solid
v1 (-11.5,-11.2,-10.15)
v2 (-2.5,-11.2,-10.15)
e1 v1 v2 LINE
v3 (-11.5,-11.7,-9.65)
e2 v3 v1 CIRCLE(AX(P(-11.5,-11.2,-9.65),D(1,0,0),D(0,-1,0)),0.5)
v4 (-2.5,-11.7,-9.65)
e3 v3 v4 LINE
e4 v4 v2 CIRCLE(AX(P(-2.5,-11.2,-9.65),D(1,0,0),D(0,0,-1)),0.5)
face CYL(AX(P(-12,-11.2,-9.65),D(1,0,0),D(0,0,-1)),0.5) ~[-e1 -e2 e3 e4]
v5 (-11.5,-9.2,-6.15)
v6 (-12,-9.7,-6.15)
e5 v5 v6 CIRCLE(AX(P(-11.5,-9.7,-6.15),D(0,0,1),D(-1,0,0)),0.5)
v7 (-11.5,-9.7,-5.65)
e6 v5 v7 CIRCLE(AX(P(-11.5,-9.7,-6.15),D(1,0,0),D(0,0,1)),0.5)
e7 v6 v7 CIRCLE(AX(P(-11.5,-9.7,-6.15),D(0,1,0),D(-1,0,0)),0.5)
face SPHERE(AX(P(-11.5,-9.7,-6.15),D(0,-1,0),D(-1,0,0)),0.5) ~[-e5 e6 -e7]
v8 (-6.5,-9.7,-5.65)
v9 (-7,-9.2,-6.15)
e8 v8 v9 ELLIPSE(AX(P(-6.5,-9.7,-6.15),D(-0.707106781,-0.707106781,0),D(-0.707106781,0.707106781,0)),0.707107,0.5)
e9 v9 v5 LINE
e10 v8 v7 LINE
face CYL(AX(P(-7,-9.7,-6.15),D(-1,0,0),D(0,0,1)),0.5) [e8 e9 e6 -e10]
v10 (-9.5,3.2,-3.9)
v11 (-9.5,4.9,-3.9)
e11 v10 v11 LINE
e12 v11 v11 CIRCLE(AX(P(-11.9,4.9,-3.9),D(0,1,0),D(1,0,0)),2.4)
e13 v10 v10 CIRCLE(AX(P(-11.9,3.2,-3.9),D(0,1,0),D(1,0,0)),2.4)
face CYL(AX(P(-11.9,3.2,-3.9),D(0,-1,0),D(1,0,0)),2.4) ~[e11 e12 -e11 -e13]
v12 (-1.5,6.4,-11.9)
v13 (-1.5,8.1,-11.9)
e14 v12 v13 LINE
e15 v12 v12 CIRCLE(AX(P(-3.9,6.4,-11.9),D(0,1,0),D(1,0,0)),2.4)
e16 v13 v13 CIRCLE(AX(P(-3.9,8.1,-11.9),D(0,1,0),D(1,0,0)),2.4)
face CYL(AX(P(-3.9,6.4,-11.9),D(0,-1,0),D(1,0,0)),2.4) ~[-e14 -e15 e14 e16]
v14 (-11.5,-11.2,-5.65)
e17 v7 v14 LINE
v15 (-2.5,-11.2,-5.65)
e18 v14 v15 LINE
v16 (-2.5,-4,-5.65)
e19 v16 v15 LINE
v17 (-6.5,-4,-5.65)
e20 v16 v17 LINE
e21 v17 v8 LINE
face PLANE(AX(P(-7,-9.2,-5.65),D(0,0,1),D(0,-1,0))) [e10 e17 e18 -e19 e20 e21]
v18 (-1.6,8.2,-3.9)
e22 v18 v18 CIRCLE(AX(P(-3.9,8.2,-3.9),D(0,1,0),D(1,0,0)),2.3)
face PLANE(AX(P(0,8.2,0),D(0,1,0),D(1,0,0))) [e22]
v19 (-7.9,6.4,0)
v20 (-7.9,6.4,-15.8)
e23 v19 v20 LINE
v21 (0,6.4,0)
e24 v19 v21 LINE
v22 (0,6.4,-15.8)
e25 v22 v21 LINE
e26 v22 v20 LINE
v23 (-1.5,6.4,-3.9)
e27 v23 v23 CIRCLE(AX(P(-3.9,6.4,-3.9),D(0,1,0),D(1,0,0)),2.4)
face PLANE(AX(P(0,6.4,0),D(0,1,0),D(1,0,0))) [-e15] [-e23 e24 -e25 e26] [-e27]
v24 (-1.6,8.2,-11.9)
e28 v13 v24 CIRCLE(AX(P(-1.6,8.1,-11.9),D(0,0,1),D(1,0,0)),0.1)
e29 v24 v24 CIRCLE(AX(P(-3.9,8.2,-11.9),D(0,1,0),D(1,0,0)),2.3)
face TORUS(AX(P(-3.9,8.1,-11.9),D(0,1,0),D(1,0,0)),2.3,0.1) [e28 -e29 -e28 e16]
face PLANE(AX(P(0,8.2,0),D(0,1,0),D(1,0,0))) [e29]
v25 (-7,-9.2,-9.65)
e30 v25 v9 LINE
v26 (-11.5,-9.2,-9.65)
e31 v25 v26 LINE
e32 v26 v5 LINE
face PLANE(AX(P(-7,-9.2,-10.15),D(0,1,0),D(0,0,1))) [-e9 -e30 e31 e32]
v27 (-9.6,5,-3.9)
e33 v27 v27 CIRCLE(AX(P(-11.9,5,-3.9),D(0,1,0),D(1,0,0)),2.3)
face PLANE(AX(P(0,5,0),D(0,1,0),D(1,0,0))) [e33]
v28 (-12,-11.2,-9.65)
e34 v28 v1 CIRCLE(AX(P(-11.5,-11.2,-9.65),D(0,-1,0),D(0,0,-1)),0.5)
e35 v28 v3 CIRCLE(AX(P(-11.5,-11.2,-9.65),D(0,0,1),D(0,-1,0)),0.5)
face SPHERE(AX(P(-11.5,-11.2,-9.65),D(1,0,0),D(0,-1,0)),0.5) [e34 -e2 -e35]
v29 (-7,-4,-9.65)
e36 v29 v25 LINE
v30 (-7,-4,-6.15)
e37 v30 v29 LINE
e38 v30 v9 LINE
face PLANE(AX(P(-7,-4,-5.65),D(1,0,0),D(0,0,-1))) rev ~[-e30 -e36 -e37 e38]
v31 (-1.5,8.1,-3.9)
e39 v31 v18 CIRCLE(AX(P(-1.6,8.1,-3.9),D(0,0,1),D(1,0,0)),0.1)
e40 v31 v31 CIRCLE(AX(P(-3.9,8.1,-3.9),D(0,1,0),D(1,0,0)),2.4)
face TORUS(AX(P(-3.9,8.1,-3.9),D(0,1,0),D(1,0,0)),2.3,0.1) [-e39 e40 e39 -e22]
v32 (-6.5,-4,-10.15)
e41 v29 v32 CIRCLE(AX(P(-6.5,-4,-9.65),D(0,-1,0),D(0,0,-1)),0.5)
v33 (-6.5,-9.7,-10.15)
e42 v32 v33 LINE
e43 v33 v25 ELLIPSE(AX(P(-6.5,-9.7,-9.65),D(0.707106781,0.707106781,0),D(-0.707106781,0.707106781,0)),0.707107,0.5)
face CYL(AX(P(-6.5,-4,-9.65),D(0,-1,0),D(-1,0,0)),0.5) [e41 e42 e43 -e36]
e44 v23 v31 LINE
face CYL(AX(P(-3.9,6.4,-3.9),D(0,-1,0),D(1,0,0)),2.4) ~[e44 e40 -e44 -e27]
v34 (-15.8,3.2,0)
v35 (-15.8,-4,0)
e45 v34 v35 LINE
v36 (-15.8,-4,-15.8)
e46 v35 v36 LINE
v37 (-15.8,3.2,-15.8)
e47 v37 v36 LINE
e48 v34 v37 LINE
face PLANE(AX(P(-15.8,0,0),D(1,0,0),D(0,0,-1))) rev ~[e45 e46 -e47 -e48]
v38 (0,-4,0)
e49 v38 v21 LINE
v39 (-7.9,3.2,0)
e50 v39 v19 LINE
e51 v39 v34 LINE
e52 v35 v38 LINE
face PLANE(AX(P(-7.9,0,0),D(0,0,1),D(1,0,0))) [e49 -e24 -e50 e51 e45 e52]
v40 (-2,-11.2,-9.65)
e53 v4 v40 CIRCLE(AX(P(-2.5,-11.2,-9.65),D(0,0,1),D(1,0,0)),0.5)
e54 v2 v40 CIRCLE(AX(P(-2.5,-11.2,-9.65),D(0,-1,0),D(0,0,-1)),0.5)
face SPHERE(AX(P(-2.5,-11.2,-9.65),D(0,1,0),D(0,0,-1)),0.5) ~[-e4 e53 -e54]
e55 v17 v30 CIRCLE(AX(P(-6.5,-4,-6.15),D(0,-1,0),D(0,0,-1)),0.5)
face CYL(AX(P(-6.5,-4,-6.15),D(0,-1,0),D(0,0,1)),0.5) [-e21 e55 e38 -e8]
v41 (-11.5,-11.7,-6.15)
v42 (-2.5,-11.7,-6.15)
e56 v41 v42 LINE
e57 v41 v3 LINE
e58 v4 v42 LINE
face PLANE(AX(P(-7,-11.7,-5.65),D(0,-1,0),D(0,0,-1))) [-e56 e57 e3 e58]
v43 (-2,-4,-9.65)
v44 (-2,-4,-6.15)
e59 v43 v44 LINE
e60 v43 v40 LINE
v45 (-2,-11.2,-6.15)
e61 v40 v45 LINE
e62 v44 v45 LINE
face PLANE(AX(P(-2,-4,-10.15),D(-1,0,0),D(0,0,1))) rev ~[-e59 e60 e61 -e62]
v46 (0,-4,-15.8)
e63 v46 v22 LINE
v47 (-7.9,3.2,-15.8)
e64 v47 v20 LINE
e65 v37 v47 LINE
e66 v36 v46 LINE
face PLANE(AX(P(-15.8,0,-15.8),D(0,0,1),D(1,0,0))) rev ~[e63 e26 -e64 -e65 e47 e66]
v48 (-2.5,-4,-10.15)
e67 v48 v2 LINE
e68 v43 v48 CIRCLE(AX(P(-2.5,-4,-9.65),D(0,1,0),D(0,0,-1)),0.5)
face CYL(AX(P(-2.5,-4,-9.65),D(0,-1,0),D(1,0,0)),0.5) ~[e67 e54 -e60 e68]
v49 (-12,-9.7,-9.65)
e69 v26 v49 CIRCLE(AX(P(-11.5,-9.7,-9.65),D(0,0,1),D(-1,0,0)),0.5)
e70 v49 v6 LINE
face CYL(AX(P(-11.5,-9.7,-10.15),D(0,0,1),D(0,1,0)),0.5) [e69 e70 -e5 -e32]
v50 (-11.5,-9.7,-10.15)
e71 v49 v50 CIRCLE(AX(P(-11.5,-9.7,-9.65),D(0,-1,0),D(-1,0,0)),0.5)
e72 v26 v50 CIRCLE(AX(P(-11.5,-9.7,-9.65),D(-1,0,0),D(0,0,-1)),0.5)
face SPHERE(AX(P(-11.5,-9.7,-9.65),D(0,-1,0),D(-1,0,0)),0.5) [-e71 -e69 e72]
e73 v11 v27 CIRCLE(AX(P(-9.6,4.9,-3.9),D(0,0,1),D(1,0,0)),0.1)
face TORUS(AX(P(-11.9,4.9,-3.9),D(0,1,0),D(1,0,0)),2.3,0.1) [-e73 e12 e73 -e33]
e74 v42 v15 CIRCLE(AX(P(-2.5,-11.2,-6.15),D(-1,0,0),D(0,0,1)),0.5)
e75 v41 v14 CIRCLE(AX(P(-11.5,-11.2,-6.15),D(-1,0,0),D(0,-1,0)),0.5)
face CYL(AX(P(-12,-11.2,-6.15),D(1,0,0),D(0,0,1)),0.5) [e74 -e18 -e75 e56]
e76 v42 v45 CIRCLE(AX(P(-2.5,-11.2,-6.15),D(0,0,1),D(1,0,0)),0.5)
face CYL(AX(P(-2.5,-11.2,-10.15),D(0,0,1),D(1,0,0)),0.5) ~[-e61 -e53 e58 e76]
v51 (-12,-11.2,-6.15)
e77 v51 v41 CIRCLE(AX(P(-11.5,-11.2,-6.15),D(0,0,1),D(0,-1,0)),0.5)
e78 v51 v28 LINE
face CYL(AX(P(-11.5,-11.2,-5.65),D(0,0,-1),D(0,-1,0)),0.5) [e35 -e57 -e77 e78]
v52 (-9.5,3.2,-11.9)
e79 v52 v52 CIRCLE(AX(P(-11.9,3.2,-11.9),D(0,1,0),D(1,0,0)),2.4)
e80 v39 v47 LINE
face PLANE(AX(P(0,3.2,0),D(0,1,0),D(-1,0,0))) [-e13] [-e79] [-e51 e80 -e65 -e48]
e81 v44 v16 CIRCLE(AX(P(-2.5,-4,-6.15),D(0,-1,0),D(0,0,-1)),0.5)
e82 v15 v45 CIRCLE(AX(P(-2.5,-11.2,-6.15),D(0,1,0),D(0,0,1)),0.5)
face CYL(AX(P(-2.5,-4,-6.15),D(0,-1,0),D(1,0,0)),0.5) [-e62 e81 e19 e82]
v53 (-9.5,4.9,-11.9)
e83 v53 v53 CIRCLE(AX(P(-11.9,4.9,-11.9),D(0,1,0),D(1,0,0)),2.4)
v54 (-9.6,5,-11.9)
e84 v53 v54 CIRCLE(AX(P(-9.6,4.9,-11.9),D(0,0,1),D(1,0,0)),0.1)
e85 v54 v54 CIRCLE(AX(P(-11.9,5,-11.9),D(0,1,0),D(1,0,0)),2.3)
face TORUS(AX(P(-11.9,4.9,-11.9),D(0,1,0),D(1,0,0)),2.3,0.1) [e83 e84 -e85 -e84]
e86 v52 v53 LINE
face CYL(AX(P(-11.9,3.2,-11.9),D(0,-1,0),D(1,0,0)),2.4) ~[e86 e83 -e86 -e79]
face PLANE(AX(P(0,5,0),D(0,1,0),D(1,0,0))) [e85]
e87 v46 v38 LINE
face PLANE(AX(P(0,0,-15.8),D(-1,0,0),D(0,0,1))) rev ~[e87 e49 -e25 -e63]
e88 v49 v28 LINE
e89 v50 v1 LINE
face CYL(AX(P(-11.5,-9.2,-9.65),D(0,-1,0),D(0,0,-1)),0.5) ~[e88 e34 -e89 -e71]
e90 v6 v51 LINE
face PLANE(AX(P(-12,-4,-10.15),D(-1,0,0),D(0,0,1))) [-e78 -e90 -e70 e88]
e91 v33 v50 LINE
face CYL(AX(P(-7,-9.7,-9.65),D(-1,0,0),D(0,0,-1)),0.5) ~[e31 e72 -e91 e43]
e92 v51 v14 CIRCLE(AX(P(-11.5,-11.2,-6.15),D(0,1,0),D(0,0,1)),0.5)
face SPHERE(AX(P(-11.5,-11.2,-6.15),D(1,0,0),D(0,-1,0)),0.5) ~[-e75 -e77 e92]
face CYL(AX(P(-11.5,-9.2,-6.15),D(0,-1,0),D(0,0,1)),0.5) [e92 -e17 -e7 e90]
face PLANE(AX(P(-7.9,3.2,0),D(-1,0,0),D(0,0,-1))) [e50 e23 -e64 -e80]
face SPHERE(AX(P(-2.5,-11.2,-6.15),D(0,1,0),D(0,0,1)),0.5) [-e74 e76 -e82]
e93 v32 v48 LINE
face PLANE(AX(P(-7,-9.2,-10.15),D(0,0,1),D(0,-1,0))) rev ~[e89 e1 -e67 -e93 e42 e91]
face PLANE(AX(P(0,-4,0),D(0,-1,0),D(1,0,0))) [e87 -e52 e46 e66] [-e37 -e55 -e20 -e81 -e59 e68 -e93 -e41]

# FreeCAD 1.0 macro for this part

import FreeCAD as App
import Part
import Sketcher


def edges_at(feature, points):
    """Names of the edges that pass closest to the given points."""
    edges = feature.Shape.Edges
    near = lambda p: min(range(len(edges)), key=lambda i: edges[i].distToShape(Part.Vertex(*p))[0])
    return sorted({f"Edge{near(p) + 1}" for p in points})

doc = App.newDocument("Part")
body = doc.addObject("PartDesign::Body", "Body")

sketch1 = doc.addObject("Sketcher::SketchObject", "Sketch")
body.addObject(sketch1)
sketch1.AttachmentSupport = (doc.XZ_Plane, [""])
sketch1.MapMode = "FlatFace"
sketch1.addGeometry(Part.LineSegment(App.Vector(-16, 0, 0), App.Vector(0, 0, 0)), False)
sketch1.addGeometry(Part.LineSegment(App.Vector(0, 0, 0), App.Vector(0, -16, 0)), False)
sketch1.addGeometry(Part.LineSegment(App.Vector(0, -16, 0), App.Vector(-16, -16, 0)), False)
sketch1.addGeometry(Part.LineSegment(App.Vector(-16, -16, 0), App.Vector(-16, 0, 0)), False)
sketch1.addConstraint(Sketcher.Constraint("Coincident", 0, 2, 1, 1))
sketch1.addConstraint(Sketcher.Constraint("Coincident", 1, 2, 2, 1))
sketch1.addConstraint(Sketcher.Constraint("Coincident", 2, 2, 3, 1))
sketch1.addConstraint(Sketcher.Constraint("Coincident", 3, 2, 0, 1))
sketch1.addConstraint(Sketcher.Constraint("Horizontal", 0))
sketch1.addConstraint(Sketcher.Constraint("Vertical", 1))
sketch1.addConstraint(Sketcher.Constraint("Horizontal", 2))
sketch1.addConstraint(Sketcher.Constraint("Vertical", 3))
sketch1.addConstraint(Sketcher.Constraint("Coincident", 0, 2, -1, 1))
sketch1.addConstraint(Sketcher.Constraint("Equal", 2, 1))
sketch1.addConstraint(Sketcher.Constraint("DistanceX", 0, 1, 0, 2, 15.8))
pad1 = doc.addObject("PartDesign::Pad", "Pad")
body.addObject(pad1)
pad1.Profile = sketch1
pad1.Length = 3.2
pad1.Reversed = True

sketch2 = doc.addObject("Sketcher::SketchObject", "Sketch001")
body.addObject(sketch2)
sketch2.AttachmentSupport = (doc.XZ_Plane, [""])
sketch2.MapMode = "FlatFace"
sketch2.AttachmentOffset = App.Placement(App.Vector(0, 0, -3.2), App.Rotation())
sketch2.addGeometry(Part.LineSegment(App.Vector(-8, -16, 0), App.Vector(-8, 0, 0)), False)
sketch2.addGeometry(Part.LineSegment(App.Vector(-8, 0, 0), App.Vector(0, 0, 0)), False)
sketch2.addGeometry(Part.LineSegment(App.Vector(0, 0, 0), App.Vector(0, -16, 0)), False)
sketch2.addGeometry(Part.LineSegment(App.Vector(0, -16, 0), App.Vector(-8, -16, 0)), False)
sketch2.addConstraint(Sketcher.Constraint("Coincident", 0, 2, 1, 1))
sketch2.addConstraint(Sketcher.Constraint("Coincident", 1, 2, 2, 1))
sketch2.addConstraint(Sketcher.Constraint("Coincident", 2, 2, 3, 1))
sketch2.addConstraint(Sketcher.Constraint("Coincident", 3, 2, 0, 1))
sketch2.addConstraint(Sketcher.Constraint("Vertical", 0))
sketch2.addConstraint(Sketcher.Constraint("Horizontal", 1))
sketch2.addConstraint(Sketcher.Constraint("Vertical", 2))
sketch2.addConstraint(Sketcher.Constraint("Horizontal", 3))
sketch2.addConstraint(Sketcher.Constraint("Coincident", 1, 2, -1, 1))
sketch2.addConstraint(Sketcher.Constraint("DistanceX", 1, 1, 1, 2, 7.9))
sketch2.addConstraint(Sketcher.Constraint("DistanceY", 0, 1, 0, 2, 15.8))
pad2 = doc.addObject("PartDesign::Pad", "Pad001")
body.addObject(pad2)
pad2.Profile = sketch2
pad2.Length = 3.2
pad2.Reversed = True

sketch3 = doc.addObject("Sketcher::SketchObject", "Sketch002")
body.addObject(sketch3)
sketch3.AttachmentSupport = (doc.XZ_Plane, [""])
sketch3.MapMode = "FlatFace"
sketch3.AttachmentOffset = App.Placement(App.Vector(0, 0, -3.2), App.Rotation())
sketch3.addGeometry(Part.Circle(App.Vector(-11.9, -11.9, 0), App.Vector(0, 0, 1), 2.4), False)
sketch3.addGeometry(Part.Circle(App.Vector(-11.9, -3.9, 0), App.Vector(0, 0, 1), 2.4), False)
sketch3.addConstraint(Sketcher.Constraint("Equal", 0, 1))
sketch3.addConstraint(Sketcher.Constraint("Vertical", 0, 3, 1, 3))
sketch3.addConstraint(Sketcher.Constraint("Diameter", 0, 4.8))
sketch3.addConstraint(Sketcher.Constraint("DistanceY", 1, 3, -1, 1, 3.9))
sketch3.addConstraint(Sketcher.Constraint("DistanceY", 0, 3, 1, 3, 8.0))
sketch3.addConstraint(Sketcher.Constraint("DistanceX", 0, 3, -1, 1, 11.9))
pad3 = doc.addObject("PartDesign::Pad", "Pad002")
body.addObject(pad3)
pad3.Profile = sketch3
pad3.Length = 1.8
pad3.Reversed = True

sketch4 = doc.addObject("Sketcher::SketchObject", "Sketch003")
body.addObject(sketch4)
sketch4.AttachmentSupport = (doc.XZ_Plane, [""])
sketch4.MapMode = "FlatFace"
sketch4.AttachmentOffset = App.Placement(App.Vector(0, 0, -6.4), App.Rotation())
sketch4.addGeometry(Part.Circle(App.Vector(-3.9, -11.9, 0), App.Vector(0, 0, 1), 2.4), False)
sketch4.addGeometry(Part.Circle(App.Vector(-3.9, -3.9, 0), App.Vector(0, 0, 1), 2.4), False)
sketch4.addConstraint(Sketcher.Constraint("Equal", 0, 1))
sketch4.addConstraint(Sketcher.Constraint("Vertical", 0, 3, 1, 3))
sketch4.addConstraint(Sketcher.Constraint("Diameter", 0, 4.8))
sketch4.addConstraint(Sketcher.Constraint("DistanceY", 0, 3, 1, 3, 8.0))
sketch4.addConstraint(Sketcher.Constraint("DistanceX", 0, 3, -1, 1, 3.9))
sketch4.addConstraint(Sketcher.Constraint("DistanceY", 1, 3, -1, 1, 3.9))
pad4 = doc.addObject("PartDesign::Pad", "Pad003")
body.addObject(pad4)
pad4.Profile = sketch4
pad4.Length = 1.8
pad4.Reversed = True

sketch5 = doc.addObject("Sketcher::SketchObject", "Sketch004")
body.addObject(sketch5)
sketch5.AttachmentSupport = (doc.XZ_Plane, [""])
sketch5.MapMode = "FlatFace"
sketch5.addGeometry(Part.LineSegment(App.Vector(0, 0, 0), App.Vector(-16, 0, 0)), False)
sketch5.addGeometry(Part.LineSegment(App.Vector(-16, 0, 0), App.Vector(-16, -16, 0)), False)
sketch5.addGeometry(Part.LineSegment(App.Vector(-16, -16, 0), App.Vector(0, -16, 0)), False)
sketch5.addGeometry(Part.LineSegment(App.Vector(0, -16, 0), App.Vector(0, 0, 0)), False)
sketch5.addConstraint(Sketcher.Constraint("Coincident", 0, 2, 1, 1))
sketch5.addConstraint(Sketcher.Constraint("Coincident", 1, 2, 2, 1))
sketch5.addConstraint(Sketcher.Constraint("Coincident", 2, 2, 3, 1))
sketch5.addConstraint(Sketcher.Constraint("Coincident", 3, 2, 0, 1))
sketch5.addConstraint(Sketcher.Constraint("Horizontal", 0))
sketch5.addConstraint(Sketcher.Constraint("Vertical", 1))
sketch5.addConstraint(Sketcher.Constraint("Horizontal", 2))
sketch5.addConstraint(Sketcher.Constraint("Vertical", 3))
sketch5.addConstraint(Sketcher.Constraint("Coincident", 3, 2, -1, 1))
sketch5.addConstraint(Sketcher.Constraint("Equal", 2, 1))
sketch5.addConstraint(Sketcher.Constraint("DistanceX", 0, 2, 0, 1, 15.8))
pad5 = doc.addObject("PartDesign::Pad", "Pad004")
body.addObject(pad5)
pad5.Profile = sketch5
pad5.Length = 4

sketch6 = doc.addObject("Sketcher::SketchObject", "Sketch005")
body.addObject(sketch6)
sketch6.AttachmentSupport = (doc.XZ_Plane, [""])
sketch6.MapMode = "FlatFace"
sketch6.AttachmentOffset = App.Placement(App.Vector(0, 0, 4), App.Rotation())
sketch6.addGeometry(Part.LineSegment(App.Vector(-2, -10.2, 0), App.Vector(-2, -5.7, 0)), False)
sketch6.addGeometry(Part.LineSegment(App.Vector(-2, -5.7, 0), App.Vector(-7, -5.7, 0)), False)
sketch6.addGeometry(Part.LineSegment(App.Vector(-7, -5.7, 0), App.Vector(-7, -10.2, 0)), False)
sketch6.addGeometry(Part.LineSegment(App.Vector(-7, -10.2, 0), App.Vector(-2, -10.2, 0)), False)
sketch6.addConstraint(Sketcher.Constraint("Coincident", 0, 2, 1, 1))
sketch6.addConstraint(Sketcher.Constraint("Coincident", 1, 2, 2, 1))
sketch6.addConstraint(Sketcher.Constraint("Coincident", 2, 2, 3, 1))
sketch6.addConstraint(Sketcher.Constraint("Coincident", 3, 2, 0, 1))
sketch6.addConstraint(Sketcher.Constraint("Vertical", 0))
sketch6.addConstraint(Sketcher.Constraint("Horizontal", 1))
sketch6.addConstraint(Sketcher.Constraint("Vertical", 2))
sketch6.addConstraint(Sketcher.Constraint("Horizontal", 3))
sketch6.addConstraint(Sketcher.Constraint("DistanceX", 1, 2, 1, 1, 5.0))
sketch6.addConstraint(Sketcher.Constraint("DistanceY", 0, 1, 0, 2, 4.5))
sketch6.addConstraint(Sketcher.Constraint("DistanceX", 1, 2, -1, 1, 7.0))
sketch6.addConstraint(Sketcher.Constraint("DistanceY", 0, 2, -1, 1, 5.65))
pad6 = doc.addObject("PartDesign::Pad", "Pad005")
body.addObject(pad6)
pad6.Profile = sketch6
pad6.Length = 7.7

sketch7 = doc.addObject("Sketcher::SketchObject", "Sketch006")
body.addObject(sketch7)
sketch7.AttachmentSupport = (doc.YZ_Plane, [""])
sketch7.MapMode = "FlatFace"
sketch7.AttachmentOffset = App.Placement(App.Vector(0, 0, -7), App.Rotation())
sketch7.addGeometry(Part.LineSegment(App.Vector(-11.7, -5.7, 0), App.Vector(-9.2, -5.7, 0)), False)
sketch7.addGeometry(Part.LineSegment(App.Vector(-9.2, -5.7, 0), App.Vector(-9.2, -10.2, 0)), False)
sketch7.addGeometry(Part.LineSegment(App.Vector(-9.2, -10.2, 0), App.Vector(-11.7, -10.2, 0)), False)
sketch7.addGeometry(Part.LineSegment(App.Vector(-11.7, -10.2, 0), App.Vector(-11.7, -5.7, 0)), False)
sketch7.addConstraint(Sketcher.Constraint("Coincident", 0, 2, 1, 1))
sketch7.addConstraint(Sketcher.Constraint("Coincident", 1, 2, 2, 1))
sketch7.addConstraint(Sketcher.Constraint("Coincident", 2, 2, 3, 1))
sketch7.addConstraint(Sketcher.Constraint("Coincident", 3, 2, 0, 1))
sketch7.addConstraint(Sketcher.Constraint("Horizontal", 0))
sketch7.addConstraint(Sketcher.Constraint("Vertical", 1))
sketch7.addConstraint(Sketcher.Constraint("Horizontal", 2))
sketch7.addConstraint(Sketcher.Constraint("Vertical", 3))
sketch7.addConstraint(Sketcher.Constraint("DistanceX", 0, 1, 0, 2, 2.5))
sketch7.addConstraint(Sketcher.Constraint("DistanceY", 1, 2, 1, 1, 4.5))
sketch7.addConstraint(Sketcher.Constraint("DistanceX", 0, 2, -1, 1, 9.2))
sketch7.addConstraint(Sketcher.Constraint("DistanceY", 0, 2, -1, 1, 5.65))
pad7 = doc.addObject("PartDesign::Pad", "Pad006")
body.addObject(pad7)
pad7.Profile = sketch7
pad7.Length = 5
pad7.Reversed = True
doc.recompute()

fillet = doc.addObject("PartDesign::Fillet", "Fillet")
body.addObject(fillet)
fillet.Base = (pad7, edges_at(pad7, [
    (-6.3, 8.2, -3.9),
    (-14.3, 5, -3.9),
    (-14.3, 5, -11.9),
    (-6.3, 8.2, -11.9),
]))
fillet.Radius = 0.1
doc.recompute()

fillet2 = doc.addObject("PartDesign::Fillet", "Fillet001")
body.addObject(fillet2)
fillet2.Base = (fillet, edges_at(fillet, [
    (-2, -7.85, -5.65),
    (-2, -7.85, -10.15),
    (-7, -11.7, -5.65),
    (-7, -11.7, -10.15),
    (-12, -11.7, -7.9),
    (-12, -10.45, -10.15),
    (-12, -10.45, -5.65),
    (-12, -9.2, -7.9),
    (-9.5, -9.2, -5.65),
    (-9.5, -9.2, -10.15),
    (-7, -6.6, -10.15),
    (-7, -6.6, -5.65),
    (-2, -11.7, -7.9),
]))
fillet2.Radius = 0.5

doc.recompute()
